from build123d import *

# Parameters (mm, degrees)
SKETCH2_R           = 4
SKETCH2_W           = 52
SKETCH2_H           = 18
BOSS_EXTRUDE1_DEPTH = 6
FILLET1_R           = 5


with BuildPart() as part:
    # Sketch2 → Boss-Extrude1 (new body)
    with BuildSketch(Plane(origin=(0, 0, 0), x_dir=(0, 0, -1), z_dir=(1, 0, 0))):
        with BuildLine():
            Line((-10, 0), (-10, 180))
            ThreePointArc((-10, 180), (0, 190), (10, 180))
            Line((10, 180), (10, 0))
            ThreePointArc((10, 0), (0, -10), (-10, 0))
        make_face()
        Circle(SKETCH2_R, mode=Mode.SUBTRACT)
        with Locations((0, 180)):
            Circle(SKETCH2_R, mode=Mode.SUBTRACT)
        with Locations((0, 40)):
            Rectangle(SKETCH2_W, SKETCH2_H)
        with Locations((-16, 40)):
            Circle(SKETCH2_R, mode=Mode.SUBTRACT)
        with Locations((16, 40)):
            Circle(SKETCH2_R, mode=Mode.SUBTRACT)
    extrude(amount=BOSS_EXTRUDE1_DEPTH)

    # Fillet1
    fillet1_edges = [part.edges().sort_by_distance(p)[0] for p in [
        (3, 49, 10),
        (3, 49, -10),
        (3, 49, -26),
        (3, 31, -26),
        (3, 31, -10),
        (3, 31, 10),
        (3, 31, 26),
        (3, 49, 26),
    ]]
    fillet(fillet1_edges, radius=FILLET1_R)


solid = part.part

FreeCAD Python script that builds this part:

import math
import FreeCAD as App
import Part
import Sketcher

V = App.Vector
Q = App.Units.Quantity


def edges_at(feature, points):
    """Names of the edges that pass closest to the given points."""
    edges = feature.Shape.Edges
    near = lambda p: min(range(len(edges)), key=lambda i: edges[i].distToShape(Part.Vertex(*p))[0])
    return sorted({f"Edge{near(p) + 1}" for p in points})

doc = App.newDocument("Part")
body = doc.addObject("PartDesign::Body", "Body")

# Sketch on YZ plane
sketch1 = body.newObject("Sketcher::SketchObject", "Sketch")
sketch1.AttachmentSupport = (doc.getObject("YZ_Plane"), [""])
sketch1.MapMode = "FlatFace"
sketch1.addGeometry(Part.ArcOfCircle(Part.Circle(V(0, 0, 0), V(0, 0, 1), 10), math.radians(90), math.radians(270)), False)
sketch1.addGeometry(Part.LineSegment(V(0, -10, 0), V(31, -10, 0)), False)
sketch1.addGeometry(Part.LineSegment(V(31, -10, 0), V(31, -26, 0)), False)
sketch1.addGeometry(Part.LineSegment(V(31, -26, 0), V(49, -26, 0)), False)
sketch1.addGeometry(Part.LineSegment(V(49, -26, 0), V(49, -10, 0)), False)
sketch1.addGeometry(Part.LineSegment(V(49, -10, 0), V(180, -10, 0)), False)
sketch1.addGeometry(Part.ArcOfCircle(Part.Circle(V(180, 0, 0), V(0, 0, 1), 10), math.radians(-90), math.radians(90)), False)
sketch1.addGeometry(Part.LineSegment(V(180, 10, 0), V(49, 10, 0)), False)
sketch1.addGeometry(Part.LineSegment(V(49, 10, 0), V(49, 26, 0)), False)
sketch1.addGeometry(Part.LineSegment(V(49, 26, 0), V(31, 26, 0)), False)
sketch1.addGeometry(Part.LineSegment(V(31, 26, 0), V(31, 10, 0)), False)
sketch1.addGeometry(Part.LineSegment(V(31, 10, 0), V(0, 10, 0)), False)
sketch1.addGeometry(Part.Circle(V(40, -16, 0), V(0, 0, 1), 4), False)
sketch1.addGeometry(Part.Circle(V(0, 0, 0), V(0, 0, 1), 4), False)
sketch1.addGeometry(Part.Circle(V(40, 16, 0), V(0, 0, 1), 4), False)
sketch1.addGeometry(Part.Circle(V(180, 0, 0), V(0, 0, 1), 4), False)
sketch1.addConstraint(Sketcher.Constraint("Tangent", 0, 2, 1, 1))
sketch1.addConstraint(Sketcher.Constraint("Coincident", 1, 2, 2, 1))
sketch1.addConstraint(Sketcher.Constraint("Coincident", 2, 2, 3, 1))
sketch1.addConstraint(Sketcher.Constraint("Coincident", 3, 2, 4, 1))
sketch1.addConstraint(Sketcher.Constraint("Coincident", 4, 2, 5, 1))
sketch1.addConstraint(Sketcher.Constraint("Tangent", 5, 2, 6, 1))
sketch1.addConstraint(Sketcher.Constraint("Tangent", 6, 2, 7, 1))
sketch1.addConstraint(Sketcher.Constraint("Coincident", 7, 2, 8, 1))
sketch1.addConstraint(Sketcher.Constraint("Coincident", 8, 2, 9, 1))
sketch1.addConstraint(Sketcher.Constraint("Coincident", 9, 2, 10, 1))
sketch1.addConstraint(Sketcher.Constraint("Coincident", 10, 2, 11, 1))
sketch1.addConstraint(Sketcher.Constraint("Tangent", 11, 2, 0, 1))
sketch1.addConstraint(Sketcher.Constraint("Horizontal", 1))
sketch1.addConstraint(Sketcher.Constraint("Vertical", 2))
sketch1.addConstraint(Sketcher.Constraint("Horizontal", 3))
sketch1.addConstraint(Sketcher.Constraint("Vertical", 4))
sketch1.addConstraint(Sketcher.Constraint("Horizontal", 5))
sketch1.addConstraint(Sketcher.Constraint("Horizontal", 7))
sketch1.addConstraint(Sketcher.Constraint("Vertical", 8))
sketch1.addConstraint(Sketcher.Constraint("Horizontal", 9))
sketch1.addConstraint(Sketcher.Constraint("Vertical", 10))
sketch1.addConstraint(Sketcher.Constraint("Horizontal", 11))
sketch1.addConstraint(Sketcher.Constraint("Coincident", 0, 3, -1, 1))
sketch1.addConstraint(Sketcher.Constraint("Coincident", 13, 3, -1, 1))
sketch1.addConstraint(Sketcher.Constraint("Coincident", 15, 3, 6, 3))
sketch1.addConstraint(Sketcher.Constraint("Equal", 0, 6))
sketch1.addConstraint(Sketcher.Constraint("Equal", 12, 13))
sketch1.addConstraint(Sketcher.Constraint("Equal", 13, 14))
sketch1.addConstraint(Sketcher.Constraint("Equal", 14, 15))
sketch1.addConstraint(Sketcher.Constraint("Symmetric", 12, 3, 14, 3, -1))
sketch1.addConstraint(Sketcher.Constraint("Symmetric", 4, 2, 7, 2, -1))
sketch1.addConstraint(Sketcher.Constraint("Symmetric", 2, 2, 9, 2, -1))
sketch1.addConstraint(Sketcher.Constraint("Diameter", 12, Q("8 mm")))
sketch1.addConstraint(Sketcher.Constraint("Radius", 0, Q("10 mm")))
sketch1.addConstraint(Sketcher.Constraint("DistanceX", 1, 1, 1, 2, Q("31 mm")))
sketch1.addConstraint(Sketcher.Constraint("DistanceX", 3, 1, 3, 2, Q("18 mm")))
sketch1.addConstraint(Sketcher.Constraint("DistanceX", 5, 1, 5, 2, Q("131 mm")))
sketch1.addConstraint(Sketcher.Constraint("DistanceY", 2, 2, 2, 1, Q("16 mm")))
sketch1.addConstraint(Sketcher.Constraint("DistanceX", -1, 1, 12, 3, Q("40 mm")))
sketch1.addConstraint(Sketcher.Constraint("DistanceY", 12, 3, -1, 1, Q("16 mm")))
pad1 = body.newObject("PartDesign::Pad", "Pad")
pad1.Profile = sketch1
pad1.Length = 6
doc.recompute()

fillet = body.newObject("PartDesign::Fillet", "Fillet")
fillet.Base = (pad1, edges_at(pad1, [
    (3, 49, 10),
    (3, 49, -10),
    (3, 49, -26),
    (3, 31, -26),
    (3, 31, -10),
    (3, 31, 10),
    (3, 31, 26),
    (3, 49, 26),
]))
fillet.Radius = 5

doc.recompute()
